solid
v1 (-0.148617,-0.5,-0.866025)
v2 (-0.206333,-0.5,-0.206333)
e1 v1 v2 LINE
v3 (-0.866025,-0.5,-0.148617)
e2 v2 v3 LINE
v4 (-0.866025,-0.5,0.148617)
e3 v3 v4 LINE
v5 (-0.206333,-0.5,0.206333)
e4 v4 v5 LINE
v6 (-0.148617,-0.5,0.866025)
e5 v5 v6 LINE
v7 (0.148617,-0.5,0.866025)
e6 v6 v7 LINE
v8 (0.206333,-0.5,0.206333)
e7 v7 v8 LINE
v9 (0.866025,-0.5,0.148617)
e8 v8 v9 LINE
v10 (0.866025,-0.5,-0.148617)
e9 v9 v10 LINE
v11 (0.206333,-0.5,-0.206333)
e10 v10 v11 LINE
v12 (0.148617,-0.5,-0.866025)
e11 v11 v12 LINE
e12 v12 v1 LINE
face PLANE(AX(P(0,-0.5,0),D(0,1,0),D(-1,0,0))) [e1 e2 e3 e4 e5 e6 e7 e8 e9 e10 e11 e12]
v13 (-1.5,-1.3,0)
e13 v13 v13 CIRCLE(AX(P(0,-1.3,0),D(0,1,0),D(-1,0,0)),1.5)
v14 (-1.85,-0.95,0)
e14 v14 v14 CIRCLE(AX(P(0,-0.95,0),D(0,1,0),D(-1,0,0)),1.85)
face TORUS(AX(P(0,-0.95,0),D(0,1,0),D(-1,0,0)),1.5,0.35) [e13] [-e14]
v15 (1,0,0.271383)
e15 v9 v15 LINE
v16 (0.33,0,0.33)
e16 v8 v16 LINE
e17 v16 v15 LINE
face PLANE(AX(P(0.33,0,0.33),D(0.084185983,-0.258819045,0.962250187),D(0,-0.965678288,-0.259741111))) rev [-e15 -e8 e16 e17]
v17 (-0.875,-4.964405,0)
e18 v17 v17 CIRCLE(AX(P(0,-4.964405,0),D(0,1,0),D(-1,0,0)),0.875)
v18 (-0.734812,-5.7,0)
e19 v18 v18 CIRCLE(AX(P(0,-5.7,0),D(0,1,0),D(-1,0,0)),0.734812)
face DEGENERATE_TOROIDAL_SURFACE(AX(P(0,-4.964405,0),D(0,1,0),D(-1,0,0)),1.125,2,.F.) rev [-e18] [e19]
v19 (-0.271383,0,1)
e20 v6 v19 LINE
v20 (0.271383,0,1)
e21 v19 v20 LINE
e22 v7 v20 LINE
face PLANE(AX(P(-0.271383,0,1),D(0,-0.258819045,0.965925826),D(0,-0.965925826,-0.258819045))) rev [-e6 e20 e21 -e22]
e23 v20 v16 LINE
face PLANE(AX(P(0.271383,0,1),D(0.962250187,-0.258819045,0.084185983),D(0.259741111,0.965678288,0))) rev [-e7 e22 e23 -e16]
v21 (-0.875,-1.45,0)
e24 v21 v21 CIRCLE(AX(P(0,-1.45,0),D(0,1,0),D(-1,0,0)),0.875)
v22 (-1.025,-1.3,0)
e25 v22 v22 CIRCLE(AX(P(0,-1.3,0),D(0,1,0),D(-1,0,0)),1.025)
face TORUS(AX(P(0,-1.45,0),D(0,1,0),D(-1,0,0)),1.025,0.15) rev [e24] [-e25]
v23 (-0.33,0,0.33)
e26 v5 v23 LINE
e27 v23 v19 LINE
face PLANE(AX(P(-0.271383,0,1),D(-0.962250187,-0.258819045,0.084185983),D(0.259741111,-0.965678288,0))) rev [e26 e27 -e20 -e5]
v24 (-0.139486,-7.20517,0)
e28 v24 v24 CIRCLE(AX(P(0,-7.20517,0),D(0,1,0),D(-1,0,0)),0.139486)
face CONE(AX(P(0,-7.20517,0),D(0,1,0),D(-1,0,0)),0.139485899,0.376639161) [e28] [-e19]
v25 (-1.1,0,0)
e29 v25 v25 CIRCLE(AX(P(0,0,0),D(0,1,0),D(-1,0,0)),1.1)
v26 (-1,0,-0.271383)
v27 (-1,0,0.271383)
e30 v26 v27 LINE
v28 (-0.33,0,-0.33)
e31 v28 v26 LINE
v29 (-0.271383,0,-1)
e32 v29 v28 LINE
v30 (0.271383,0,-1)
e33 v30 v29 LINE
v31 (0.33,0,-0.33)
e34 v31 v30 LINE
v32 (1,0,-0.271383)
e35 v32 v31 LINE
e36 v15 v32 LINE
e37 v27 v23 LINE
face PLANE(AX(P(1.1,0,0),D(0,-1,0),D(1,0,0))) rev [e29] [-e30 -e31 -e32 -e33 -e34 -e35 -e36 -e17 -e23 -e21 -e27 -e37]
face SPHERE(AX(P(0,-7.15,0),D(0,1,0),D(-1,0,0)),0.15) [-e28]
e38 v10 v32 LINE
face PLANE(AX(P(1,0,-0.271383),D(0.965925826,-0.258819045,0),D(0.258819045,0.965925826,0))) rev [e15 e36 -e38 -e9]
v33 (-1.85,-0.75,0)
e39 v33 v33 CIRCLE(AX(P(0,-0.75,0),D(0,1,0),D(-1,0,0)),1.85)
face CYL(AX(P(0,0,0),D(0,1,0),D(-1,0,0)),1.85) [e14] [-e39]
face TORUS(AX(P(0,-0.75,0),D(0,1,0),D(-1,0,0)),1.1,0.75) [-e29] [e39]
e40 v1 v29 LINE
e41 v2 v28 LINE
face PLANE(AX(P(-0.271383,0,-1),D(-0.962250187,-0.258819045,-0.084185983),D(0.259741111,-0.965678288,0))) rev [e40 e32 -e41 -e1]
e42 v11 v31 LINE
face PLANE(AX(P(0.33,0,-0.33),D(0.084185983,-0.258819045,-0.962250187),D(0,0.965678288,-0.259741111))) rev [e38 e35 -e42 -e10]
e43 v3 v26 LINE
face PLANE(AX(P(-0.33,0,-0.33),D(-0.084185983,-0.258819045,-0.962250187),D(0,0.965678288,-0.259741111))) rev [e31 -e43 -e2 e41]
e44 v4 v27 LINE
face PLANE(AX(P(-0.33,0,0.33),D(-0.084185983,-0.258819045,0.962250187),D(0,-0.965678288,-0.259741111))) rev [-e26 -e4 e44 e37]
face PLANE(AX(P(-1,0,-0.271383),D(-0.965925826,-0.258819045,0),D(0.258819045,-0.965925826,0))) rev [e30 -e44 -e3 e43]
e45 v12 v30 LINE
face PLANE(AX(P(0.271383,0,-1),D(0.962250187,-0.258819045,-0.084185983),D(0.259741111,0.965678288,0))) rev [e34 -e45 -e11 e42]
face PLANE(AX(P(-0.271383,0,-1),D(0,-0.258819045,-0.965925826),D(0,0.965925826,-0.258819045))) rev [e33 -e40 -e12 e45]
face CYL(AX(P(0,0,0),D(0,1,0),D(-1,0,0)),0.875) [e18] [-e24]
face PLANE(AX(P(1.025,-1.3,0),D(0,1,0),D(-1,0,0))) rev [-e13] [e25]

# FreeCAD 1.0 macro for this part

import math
import FreeCAD as App
import Part
import Sketcher
Q = App.Units.Quantity

doc = App.newDocument("Part")
body = doc.addObject("PartDesign::Body", "Body")

sketch1 = body.newObject("Sketcher::SketchObject", "Sketch")
sketch1.AttachmentSupport = (doc.getObject("XY_Plane"), [""])
sketch1.MapMode = "FlatFace"
sketch1.addGeometry(Part.LineSegment(App.Vector(0.88, -4.96, 0), App.Vector(0.88, -1.45, 0)), False)
sketch1.addGeometry(Part.ArcOfCircle(Part.Circle(App.Vector(1.03, -1.45, 0), App.Vector(0, 0, 1), 0.15), math.radians(90), math.radians(180)), False)
sketch1.addGeometry(Part.LineSegment(App.Vector(1.02, -1.3, 0), App.Vector(1.5, -1.3, 0)), False)
sketch1.addGeometry(Part.ArcOfCircle(Part.Circle(App.Vector(1.5, -0.95, 0), App.Vector(0, 0, 1), 0.35), math.radians(-90), math.radians(0)), False)
sketch1.addGeometry(Part.LineSegment(App.Vector(1.85, -0.95, 0), App.Vector(1.85, -0.75, 0)), False)
sketch1.addGeometry(Part.ArcOfCircle(Part.Circle(App.Vector(1.1, -0.75, 0), App.Vector(0, 0, 1), 0.75), math.radians(0), math.radians(90)), False)
sketch1.addGeometry(Part.LineSegment(App.Vector(1.1, 0, 0), App.Vector(0, 0, 0)), False)
sketch1.addGeometry(Part.LineSegment(App.Vector(0, 0, 0), App.Vector(0, -7.3, 0)), False)
sketch1.addGeometry(Part.ArcOfCircle(Part.Circle(App.Vector(0, -7.15, 0), App.Vector(0, 0, 1), 0.15), math.radians(-90), math.radians(-22)), False)
sketch1.addGeometry(Part.LineSegment(App.Vector(0.14, -7.21, 0), App.Vector(0.73, -5.7, 0)), False)
sketch1.addGeometry(Part.ArcOfCircle(Part.Circle(App.Vector(-1.13, -4.96, 0), App.Vector(0, 0, 1), 2), math.radians(-22), math.radians(0)), False)
sketch1.addConstraint(Sketcher.Constraint("Tangent", 0, 2, 1, 2))
sketch1.addConstraint(Sketcher.Constraint("Tangent", 1, 1, 2, 1))
sketch1.addConstraint(Sketcher.Constraint("Tangent", 2, 2, 3, 1))
sketch1.addConstraint(Sketcher.Constraint("Tangent", 3, 2, 4, 1))
sketch1.addConstraint(Sketcher.Constraint("Tangent", 4, 2, 5, 1))
sketch1.addConstraint(Sketcher.Constraint("Tangent", 5, 2, 6, 1))
sketch1.addConstraint(Sketcher.Constraint("Coincident", 6, 2, 7, 1))
sketch1.addConstraint(Sketcher.Constraint("Coincident", 7, 2, 8, 1))
sketch1.addConstraint(Sketcher.Constraint("Tangent", 8, 2, 9, 1))
sketch1.addConstraint(Sketcher.Constraint("Tangent", 9, 2, 10, 1))
sketch1.addConstraint(Sketcher.Constraint("Tangent", 10, 2, 0, 1))
sketch1.addConstraint(Sketcher.Constraint("Vertical", 0))
sketch1.addConstraint(Sketcher.Constraint("Horizontal", 2))
sketch1.addConstraint(Sketcher.Constraint("Vertical", 4))
sketch1.addConstraint(Sketcher.Constraint("Horizontal", 6))
sketch1.addConstraint(Sketcher.Constraint("Vertical", 7))
sketch1.addConstraint(Sketcher.Constraint("Coincident", 6, 2, -1, 1))
sketch1.addConstraint(Sketcher.Constraint("Equal", 1, 8))
sketch1.addConstraint(Sketcher.Constraint("PointOnObject", 8, 3, -2))
sketch1.addConstraint(Sketcher.Constraint("Radius", 10, Q("2 mm")))
sketch1.addConstraint(Sketcher.Constraint("Radius", 1, Q("0.15 mm")))
sketch1.addConstraint(Sketcher.Constraint("Radius", 3, Q("0.35 mm")))
sketch1.addConstraint(Sketcher.Constraint("Radius", 5, Q("0.75 mm")))
sketch1.addConstraint(Sketcher.Constraint("DistanceX", 6, 2, 6, 1, Q("1.1 mm")))
sketch1.addConstraint(Sketcher.Constraint("DistanceY", 4, 1, 4, 2, Q("0.2 mm")))
sketch1.addConstraint(Sketcher.Constraint("DistanceY", 7, 2, 7, 1, Q("7.3 mm")))
sketch1.addConstraint(Sketcher.Constraint("DistanceY", 9, 2, -1, 1, Q("5.7 mm")))
sketch1.addConstraint(Sketcher.Constraint("DistanceX", 2, 1, 2, 2, Q("0.475 mm")))
revolution = body.newObject("PartDesign::Revolution", "Revolution")
revolution.Profile = sketch1
revolution.ReferenceAxis = (sketch1, ["V_Axis"])
revolution.Angle = 360

sketch2 = body.newObject("Sketcher::SketchObject", "Sketch001")
sketch2.AttachmentSupport = (doc.getObject("XZ_Plane"), [""])
sketch2.MapMode = "FlatFace"
sketch2.addGeometry(Part.LineSegment(App.Vector(-0.3, -1, 0), App.Vector(-0.3, -0.3, 0)), False)
sketch2.addGeometry(Part.LineSegment(App.Vector(-0.3, -0.3, 0), App.Vector(-1, -0.3, 0)), False)
sketch2.addGeometry(Part.LineSegment(App.Vector(-1, -0.3, 0), App.Vector(-1, 0.3, 0)), False)
sketch2.addGeometry(Part.LineSegment(App.Vector(-1, 0.3, 0), App.Vector(-0.3, 0.3, 0)), False)
sketch2.addGeometry(Part.LineSegment(App.Vector(-0.3, 0.3, 0), App.Vector(-0.3, 1, 0)), False)
sketch2.addGeometry(Part.LineSegment(App.Vector(-0.3, 1, 0), App.Vector(0.3, 1, 0)), False)
sketch2.addGeometry(Part.LineSegment(App.Vector(0.3, 1, 0), App.Vector(0.3, 0.3, 0)), False)
sketch2.addGeometry(Part.LineSegment(App.Vector(0.3, 0.3, 0), App.Vector(1, 0.3, 0)), False)
sketch2.addGeometry(Part.LineSegment(App.Vector(1, 0.3, 0), App.Vector(1, -0.3, 0)), False)
sketch2.addGeometry(Part.LineSegment(App.Vector(1, -0.3, 0), App.Vector(0.3, -0.3, 0)), False)
sketch2.addGeometry(Part.LineSegment(App.Vector(0.3, -0.3, 0), App.Vector(0.3, -1, 0)), False)
sketch2.addGeometry(Part.LineSegment(App.Vector(0.3, -1, 0), App.Vector(-0.3, -1, 0)), False)
sketch2.addConstraint(Sketcher.Constraint("Coincident", 0, 2, 1, 1))
sketch2.addConstraint(Sketcher.Constraint("Coincident", 1, 2, 2, 1))
sketch2.addConstraint(Sketcher.Constraint("Coincident", 2, 2, 3, 1))
sketch2.addConstraint(Sketcher.Constraint("Coincident", 3, 2, 4, 1))
sketch2.addConstraint(Sketcher.Constraint("Coincident", 4, 2, 5, 1))
sketch2.addConstraint(Sketcher.Constraint("Coincident", 5, 2, 6, 1))
sketch2.addConstraint(Sketcher.Constraint("Coincident", 6, 2, 7, 1))
sketch2.addConstraint(Sketcher.Constraint("Coincident", 7, 2, 8, 1))
sketch2.addConstraint(Sketcher.Constraint("Coincident", 8, 2, 9, 1))
sketch2.addConstraint(Sketcher.Constraint("Coincident", 9, 2, 10, 1))
sketch2.addConstraint(Sketcher.Constraint("Coincident", 10, 2, 11, 1))
sketch2.addConstraint(Sketcher.Constraint("Coincident", 11, 2, 0, 1))
sketch2.addConstraint(Sketcher.Constraint("Vertical", 2))
sketch2.addConstraint(Sketcher.Constraint("Horizontal", 5))
sketch2.addConstraint(Sketcher.Constraint("Vertical", 8))
sketch2.addConstraint(Sketcher.Constraint("Horizontal", 11))
sketch2.addConstraint(Sketcher.Constraint("Symmetric", 0, 2, 6, 2, -1, 1))
sketch2.addConstraint(Sketcher.Constraint("Symmetric", 1, 2, 7, 2, -1, 1))
sketch2.addConstraint(Sketcher.Constraint("Symmetric", 3, 2, 9, 2, -1, 1))
sketch2.addConstraint(Sketcher.Constraint("Symmetric", 4, 2, 10, 2, -1, 1))
sketch2.addConstraint(Sketcher.Constraint("Symmetric", 3, 2, 6, 2, -2))
sketch2.addConstraint(Sketcher.Constraint("Perpendicular", 0, 3))
sketch2.addConstraint(Sketcher.Constraint("Perpendicular", 1, 4))
sketch2.addConstraint(Sketcher.Constraint("Perpendicular", 3, 6))
sketch2.addConstraint(Sketcher.Constraint("Perpendicular", 6, 9))
sketch2.addConstraint(Sketcher.Constraint("Horizontal", 2, 2, 7, 2))
sketch2.addConstraint(Sketcher.Constraint("Equal", 11, 2))
sketch2.addConstraint(Sketcher.Constraint("Equal", 0, 1))
sketch2.addConstraint(Sketcher.Constraint("Angle", 0, Q("95 deg")))
sketch2.addConstraint(Sketcher.Constraint("DistanceX", 1, 2, -1, 1, Q("1 mm")))
sketch2.addConstraint(Sketcher.Constraint("DistanceX", 0, 2, -1, 1, Q("0.33 mm")))
pocket1 = body.newObject("PartDesign::Pocket", "Pocket")
pocket1.Profile = sketch2
pocket1.Length = 0.5
pocket1.Reversed = True
pocket1.TaperAngle = -15

doc.recompute()
